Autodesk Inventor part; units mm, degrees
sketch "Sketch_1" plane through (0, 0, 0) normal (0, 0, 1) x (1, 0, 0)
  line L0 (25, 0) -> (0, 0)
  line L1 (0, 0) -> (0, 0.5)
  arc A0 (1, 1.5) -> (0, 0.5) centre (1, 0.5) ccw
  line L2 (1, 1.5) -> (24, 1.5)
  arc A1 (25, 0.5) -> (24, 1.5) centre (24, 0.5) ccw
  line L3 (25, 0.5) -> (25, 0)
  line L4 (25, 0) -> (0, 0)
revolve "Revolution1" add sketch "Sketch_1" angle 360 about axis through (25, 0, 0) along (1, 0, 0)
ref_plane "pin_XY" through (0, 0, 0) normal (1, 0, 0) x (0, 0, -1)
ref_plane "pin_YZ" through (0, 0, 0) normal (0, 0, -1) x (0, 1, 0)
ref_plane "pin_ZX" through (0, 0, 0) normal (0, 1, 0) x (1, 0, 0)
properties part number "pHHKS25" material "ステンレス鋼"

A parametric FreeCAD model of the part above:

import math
import FreeCAD as App
import Part
import Sketcher

doc = App.newDocument("Part")
body = doc.addObject("PartDesign::Body", "Body")

# Sketch on XY plane
sketch1 = body.newObject("Sketcher::SketchObject", "Sketch")
sketch1.AttachmentSupport = (doc.getObject("XY_Plane"), [""])
sketch1.MapMode = "FlatFace"
sketch1.addGeometry(Part.LineSegment(App.Vector(0, 0, 0), App.Vector(25, 0, 0)), False)
sketch1.addGeometry(Part.LineSegment(App.Vector(25, 0, 0), App.Vector(25, 0.5, 0)), False)
sketch1.addGeometry(Part.ArcOfCircle(Part.Circle(App.Vector(24, 0.5, 0), App.Vector(0, 0, 1), 1), math.radians(0), math.radians(90)), False)
sketch1.addGeometry(Part.LineSegment(App.Vector(24, 1.5, 0), App.Vector(1, 1.5, 0)), False)
sketch1.addGeometry(Part.ArcOfCircle(Part.Circle(App.Vector(1, 0.5, 0), App.Vector(0, 0, 1), 1), math.radians(90), math.radians(180)), False)
sketch1.addGeometry(Part.LineSegment(App.Vector(0, 0.5, 0), App.Vector(0, 0, 0)), False)
sketch1.addConstraint(Sketcher.Constraint("Coincident", 0, 2, 1, 1))
sketch1.addConstraint(Sketcher.Constraint("Tangent", 1, 2, 2, 1))
sketch1.addConstraint(Sketcher.Constraint("Tangent", 2, 2, 3, 1))
sketch1.addConstraint(Sketcher.Constraint("Tangent", 3, 2, 4, 1))
sketch1.addConstraint(Sketcher.Constraint("Tangent", 4, 2, 5, 1))
sketch1.addConstraint(Sketcher.Constraint("Coincident", 5, 2, 0, 1))
sketch1.addConstraint(Sketcher.Constraint("Horizontal", 0))
sketch1.addConstraint(Sketcher.Constraint("Vertical", 1))
sketch1.addConstraint(Sketcher.Constraint("Horizontal", 3))
sketch1.addConstraint(Sketcher.Constraint("Vertical", 5))
sketch1.addConstraint(Sketcher.Constraint("Coincident", 5, 2, -1, 1))
sketch1.addConstraint(Sketcher.Constraint("Equal", 2, 4))
sketch1.addConstraint(Sketcher.Constraint("Radius", 2, 1.0))
sketch1.addConstraint(Sketcher.Constraint("DistanceX", 0, 1, 0, 2, 25.0))
sketch1.addConstraint(Sketcher.Constraint("DistanceY", 1, 1, 1, 2, 0.5))
revolution = body.newObject("PartDesign::Revolution", "Revolution")
revolution.Profile = sketch1
revolution.ReferenceAxis = (sketch1, ["H_Axis"])
revolution.Angle = 360

doc.recompute()
